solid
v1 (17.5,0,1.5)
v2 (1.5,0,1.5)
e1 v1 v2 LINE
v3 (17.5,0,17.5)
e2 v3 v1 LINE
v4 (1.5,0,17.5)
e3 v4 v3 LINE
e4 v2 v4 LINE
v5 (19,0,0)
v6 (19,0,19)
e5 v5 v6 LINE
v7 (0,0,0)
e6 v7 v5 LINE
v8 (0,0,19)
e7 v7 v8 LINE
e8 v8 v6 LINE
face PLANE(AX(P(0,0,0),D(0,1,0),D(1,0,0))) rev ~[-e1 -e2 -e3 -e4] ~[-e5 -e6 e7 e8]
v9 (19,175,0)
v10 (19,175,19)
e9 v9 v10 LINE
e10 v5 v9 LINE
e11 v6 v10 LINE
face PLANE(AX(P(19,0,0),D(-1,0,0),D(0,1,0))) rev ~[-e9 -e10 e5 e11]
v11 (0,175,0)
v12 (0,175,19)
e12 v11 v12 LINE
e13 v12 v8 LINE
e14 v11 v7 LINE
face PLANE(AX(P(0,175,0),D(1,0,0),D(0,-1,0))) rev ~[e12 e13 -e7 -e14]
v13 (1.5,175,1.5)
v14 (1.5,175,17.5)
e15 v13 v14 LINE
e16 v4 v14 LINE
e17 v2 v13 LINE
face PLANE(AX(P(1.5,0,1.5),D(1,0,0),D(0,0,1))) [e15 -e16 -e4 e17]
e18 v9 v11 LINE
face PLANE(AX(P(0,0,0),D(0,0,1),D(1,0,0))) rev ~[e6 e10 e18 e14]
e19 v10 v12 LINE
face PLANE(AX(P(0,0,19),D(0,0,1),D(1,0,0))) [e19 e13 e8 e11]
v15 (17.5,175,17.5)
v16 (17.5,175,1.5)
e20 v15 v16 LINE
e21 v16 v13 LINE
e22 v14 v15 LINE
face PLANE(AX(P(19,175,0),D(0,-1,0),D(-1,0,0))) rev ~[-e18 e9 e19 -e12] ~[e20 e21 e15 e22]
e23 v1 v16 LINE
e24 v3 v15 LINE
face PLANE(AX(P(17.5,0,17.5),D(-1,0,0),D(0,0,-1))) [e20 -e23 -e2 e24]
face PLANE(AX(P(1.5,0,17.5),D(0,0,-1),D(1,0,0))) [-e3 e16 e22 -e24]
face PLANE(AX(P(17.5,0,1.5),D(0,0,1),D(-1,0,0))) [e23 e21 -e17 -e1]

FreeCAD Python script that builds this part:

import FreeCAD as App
import Part
import Sketcher
from FreeCAD import Vector


def add_polygon(sketch, points):
    """Adds a closed chain of lines whose ends are joined by coincident constraints."""
    first, n = sketch.GeometryCount, len(points)
    for a, b in zip(points, points[1:] + points[:1]):
        sketch.addGeometry(Part.LineSegment(App.Vector(*a, 0), App.Vector(*b, 0)), False)
    for i in range(n):
        sketch.addConstraint(Sketcher.Constraint("Coincident", first + i, 2, first + (i + 1) % n, 1))

doc = App.newDocument("Part")
params = doc.addObject("Spreadsheet::Sheet", "Params")
for row, (alias, value) in enumerate([
    ("sketch1_width", "19 mm"),
    ("sketch1_height", "175 mm"),
    ("pad1_length", "19 mm"),
    ("sketch2_width", "16 mm"),
], start=1):
    params.set(f"A{row}", alias)
    params.set(f"B{row}", "=" + value)
    params.setAlias(f"B{row}", alias)

body = doc.addObject("PartDesign::Body", "Body")

sketch1 = body.newObject("Sketcher::SketchObject", "Sketch")
sketch1.AttachmentSupport = (doc.getObject("XY_Plane"), [""])
sketch1.MapMode = "FlatFace"
add_polygon(sketch1, [(0, 175), (0, 0), (19, 0), (19, 175)])
sketch1.addConstraint(Sketcher.Constraint("Vertical", 0))
sketch1.addConstraint(Sketcher.Constraint("Horizontal", 1))
sketch1.addConstraint(Sketcher.Constraint("Vertical", 2))
sketch1.addConstraint(Sketcher.Constraint("Horizontal", 3))
sketch1.addConstraint(Sketcher.Constraint("Coincident", 0, 2, -1, 1))
sketch1.addConstraint(Sketcher.Constraint("DistanceX", 1, 1, 1, 2, 19.0))
sketch1.addConstraint(Sketcher.Constraint("DistanceY", 0, 2, 0, 1, 175.0))
sketch1.setExpression("Constraints[9]", "Params.sketch1_width")
sketch1.setExpression("Constraints[10]", "Params.sketch1_height")
pad1 = body.newObject("PartDesign::Pad", "Pad")
pad1.Profile = sketch1
pad1.setExpression("Length", "Params.pad1_length")

sketch2 = body.newObject("Sketcher::SketchObject", "Sketch001")
sketch2.AttachmentSupport = (doc.getObject("XZ_Plane"), [""])
sketch2.MapMode = "FlatFace"
add_polygon(sketch2, [(18, 2), (18, 18), (2, 18), (2, 2)])
sketch2.addConstraint(Sketcher.Constraint("Vertical", 0))
sketch2.addConstraint(Sketcher.Constraint("Horizontal", 1))
sketch2.addConstraint(Sketcher.Constraint("Vertical", 2))
sketch2.addConstraint(Sketcher.Constraint("Horizontal", 3))
sketch2.addConstraint(Sketcher.Constraint("Equal", 3, 0))
sketch2.addConstraint(Sketcher.Constraint("DistanceX", -1, 1, 1, 2, 1.5))
sketch2.addConstraint(Sketcher.Constraint("DistanceY", -1, 1, 2, 2, 1.5))
sketch2.addConstraint(Sketcher.Constraint("DistanceX", 1, 2, 1, 1, 16.0))
sketch2.setExpression("Constraints[11]", "Params.sketch2_width")
pocket1 = body.newObject("PartDesign::Pocket", "Pocket")
pocket1.Profile = sketch2
pocket1.Type = "ThroughAll"

doc.recompute()
